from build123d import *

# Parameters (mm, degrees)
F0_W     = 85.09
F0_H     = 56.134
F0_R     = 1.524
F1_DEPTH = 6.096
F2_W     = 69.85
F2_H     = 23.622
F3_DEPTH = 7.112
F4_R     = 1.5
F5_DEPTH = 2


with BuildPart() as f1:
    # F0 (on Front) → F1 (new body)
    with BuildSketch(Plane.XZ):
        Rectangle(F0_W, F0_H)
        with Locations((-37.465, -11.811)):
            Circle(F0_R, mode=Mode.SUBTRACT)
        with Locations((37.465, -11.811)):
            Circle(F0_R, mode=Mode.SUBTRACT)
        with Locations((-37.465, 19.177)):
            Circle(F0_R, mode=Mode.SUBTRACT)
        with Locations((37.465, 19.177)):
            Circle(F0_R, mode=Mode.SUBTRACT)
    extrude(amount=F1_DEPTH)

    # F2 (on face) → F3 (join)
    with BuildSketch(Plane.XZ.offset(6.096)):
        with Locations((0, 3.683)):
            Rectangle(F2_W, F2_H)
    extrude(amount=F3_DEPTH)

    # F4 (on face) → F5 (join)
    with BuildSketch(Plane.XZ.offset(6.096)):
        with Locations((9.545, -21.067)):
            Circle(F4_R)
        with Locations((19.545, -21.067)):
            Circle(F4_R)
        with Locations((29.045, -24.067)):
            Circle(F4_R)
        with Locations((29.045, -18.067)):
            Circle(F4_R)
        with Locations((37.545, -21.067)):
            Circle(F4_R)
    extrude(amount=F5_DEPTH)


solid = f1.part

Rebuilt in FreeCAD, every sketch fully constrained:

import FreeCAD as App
import Part
import Sketcher
Q = App.Units.Quantity

doc = App.newDocument("Part")
body = doc.addObject("PartDesign::Body", "Body")

sketch1 = body.newObject("Sketcher::SketchObject", "Sketch")
sketch1.AttachmentSupport = (doc.getObject("XZ_Plane"), [""])
sketch1.MapMode = "FlatFace"
sketch1.addGeometry(Part.LineSegment(App.Vector(-42.5, 28.1, 0), App.Vector(-42.5, -28.1, 0)), False)
sketch1.addGeometry(Part.LineSegment(App.Vector(-42.5, -28.1, 0), App.Vector(42.5, -28.1, 0)), False)
sketch1.addGeometry(Part.LineSegment(App.Vector(42.5, -28.1, 0), App.Vector(42.5, 28.1, 0)), False)
sketch1.addGeometry(Part.LineSegment(App.Vector(42.5, 28.1, 0), App.Vector(-42.5, 28.1, 0)), False)
sketch1.addGeometry(Part.Circle(App.Vector(-37.5, -11.8, 0), App.Vector(0, 0, 1), 1.5), False)
sketch1.addGeometry(Part.Circle(App.Vector(37.5, -11.8, 0), App.Vector(0, 0, 1), 1.5), False)
sketch1.addGeometry(Part.Circle(App.Vector(-37.5, 19.2, 0), App.Vector(0, 0, 1), 1.5), False)
sketch1.addGeometry(Part.Circle(App.Vector(37.5, 19.2, 0), App.Vector(0, 0, 1), 1.5), False)
sketch1.addConstraint(Sketcher.Constraint("Coincident", 0, 2, 1, 1))
sketch1.addConstraint(Sketcher.Constraint("Coincident", 1, 2, 2, 1))
sketch1.addConstraint(Sketcher.Constraint("Coincident", 2, 2, 3, 1))
sketch1.addConstraint(Sketcher.Constraint("Coincident", 3, 2, 0, 1))
sketch1.addConstraint(Sketcher.Constraint("Vertical", 0))
sketch1.addConstraint(Sketcher.Constraint("Horizontal", 1))
sketch1.addConstraint(Sketcher.Constraint("Vertical", 2))
sketch1.addConstraint(Sketcher.Constraint("Horizontal", 3))
sketch1.addConstraint(Sketcher.Constraint("Equal", 4, 5))
sketch1.addConstraint(Sketcher.Constraint("Equal", 5, 6))
sketch1.addConstraint(Sketcher.Constraint("Equal", 6, 7))
sketch1.addConstraint(Sketcher.Constraint("Symmetric", 0, 2, 2, 2, -1, 1))
sketch1.addConstraint(Sketcher.Constraint("Symmetric", 4, 3, 5, 3, -2))
sketch1.addConstraint(Sketcher.Constraint("Symmetric", 6, 3, 7, 3, -2))
sketch1.addConstraint(Sketcher.Constraint("Vertical", 4, 3, 6, 3))
sketch1.addConstraint(Sketcher.Constraint("Diameter", 4, Q("0.12 in")))
sketch1.addConstraint(Sketcher.Constraint("DistanceX", 1, 1, 1, 2, Q("3.35 in")))
sketch1.addConstraint(Sketcher.Constraint("DistanceY", 0, 2, 0, 1, Q("2.21 in")))
sketch1.addConstraint(Sketcher.Constraint("DistanceX", 0, 2, 4, 3, Q("0.2 in")))
sketch1.addConstraint(Sketcher.Constraint("DistanceY", 4, 3, 6, 3, Q("1.22 in")))
sketch1.addConstraint(Sketcher.Constraint("DistanceY", 0, 2, 4, 3, Q("0.64 in")))
pad1 = body.newObject("PartDesign::Pad", "Pad")
pad1.Profile = sketch1
pad1.Length = Q("0.24 in")

sketch2 = body.newObject("Sketcher::SketchObject", "Sketch001")
sketch2.AttachmentSupport = (doc.getObject("XZ_Plane"), [""])
sketch2.MapMode = "FlatFace"
sketch2.AttachmentOffset = App.Placement(App.Vector(0, 0, 0.24 * 25.4), App.Rotation())
sketch2.addGeometry(Part.LineSegment(App.Vector(-35, 15, 0), App.Vector(-35, -8, 0)), False)
sketch2.addGeometry(Part.LineSegment(App.Vector(-35, -8, 0), App.Vector(35, -8, 0)), False)
sketch2.addGeometry(Part.LineSegment(App.Vector(35, -8, 0), App.Vector(35, 15, 0)), False)
sketch2.addGeometry(Part.LineSegment(App.Vector(35, 15, 0), App.Vector(-35, 15, 0)), False)
sketch2.addConstraint(Sketcher.Constraint("Coincident", 0, 2, 1, 1))
sketch2.addConstraint(Sketcher.Constraint("Coincident", 1, 2, 2, 1))
sketch2.addConstraint(Sketcher.Constraint("Coincident", 2, 2, 3, 1))
sketch2.addConstraint(Sketcher.Constraint("Coincident", 3, 2, 0, 1))
sketch2.addConstraint(Sketcher.Constraint("Vertical", 0))
sketch2.addConstraint(Sketcher.Constraint("Horizontal", 1))
sketch2.addConstraint(Sketcher.Constraint("Vertical", 2))
sketch2.addConstraint(Sketcher.Constraint("Horizontal", 3))
sketch2.addConstraint(Sketcher.Constraint("DistanceX", 1, 1, 1, 2, Q("2.75 in")))
sketch2.addConstraint(Sketcher.Constraint("DistanceY", 0, 2, 0, 1, Q("0.93 in")))
sketch2.addConstraint(Sketcher.Constraint("DistanceY", 0, 2, -1, 1, Q("0.32 in")))
sketch2.addConstraint(Sketcher.Constraint("DistanceX", 0, 2, -1, 1, Q("1.375 in")))
pad2 = body.newObject("PartDesign::Pad", "Pad001")
pad2.Profile = sketch2
pad2.Length = Q("0.28 in")

sketch3 = body.newObject("Sketcher::SketchObject", "Sketch002")
sketch3.AttachmentSupport = (doc.getObject("XZ_Plane"), [""])
sketch3.MapMode = "FlatFace"
sketch3.AttachmentOffset = App.Placement(App.Vector(0, 0, 0.24 * 25.4), App.Rotation())
sketch3.addGeometry(Part.Circle(App.Vector(9.5, -21.1, 0), App.Vector(0, 0, 1), 1.5), False)
sketch3.addGeometry(Part.Circle(App.Vector(19.5, -21.1, 0), App.Vector(0, 0, 1), 1.5), False)
sketch3.addGeometry(Part.Circle(App.Vector(29, -24.1, 0), App.Vector(0, 0, 1), 1.5), False)
sketch3.addGeometry(Part.Circle(App.Vector(29, -18.1, 0), App.Vector(0, 0, 1), 1.5), False)
sketch3.addGeometry(Part.Circle(App.Vector(37.5, -21.1, 0), App.Vector(0, 0, 1), 1.5), False)
sketch3.addConstraint(Sketcher.Constraint("Equal", 0, 1))
sketch3.addConstraint(Sketcher.Constraint("Equal", 1, 2))
sketch3.addConstraint(Sketcher.Constraint("Equal", 2, 3))
sketch3.addConstraint(Sketcher.Constraint("Equal", 3, 4))
sketch3.addConstraint(Sketcher.Constraint("Horizontal", 0, 3, 1, 3))
sketch3.addConstraint(Sketcher.Constraint("Horizontal", 1, 3, 4, 3))
sketch3.addConstraint(Sketcher.Constraint("Vertical", 2, 3, 3, 3))
sketch3.addConstraint(Sketcher.Constraint("Diameter", 0, 3.0))
sketch3.addConstraint(Sketcher.Constraint("DistanceX", -1, 1, 0, 3, 9.545))
sketch3.addConstraint(Sketcher.Constraint("DistanceY", 0, 3, -1, 1, 21.067))
sketch3.addConstraint(Sketcher.Constraint("DistanceX", -1, 1, 1, 3, 19.545))
sketch3.addConstraint(Sketcher.Constraint("DistanceX", -1, 1, 2, 3, 29.045))
sketch3.addConstraint(Sketcher.Constraint("DistanceY", 2, 3, -1, 1, 24.067))
sketch3.addConstraint(Sketcher.Constraint("DistanceY", 3, 3, -1, 1, 18.067))
sketch3.addConstraint(Sketcher.Constraint("DistanceX", -1, 1, 4, 3, 37.545))
pad3 = body.newObject("PartDesign::Pad", "Pad002")
pad3.Profile = sketch3
pad3.Length = 2

doc.recompute()
